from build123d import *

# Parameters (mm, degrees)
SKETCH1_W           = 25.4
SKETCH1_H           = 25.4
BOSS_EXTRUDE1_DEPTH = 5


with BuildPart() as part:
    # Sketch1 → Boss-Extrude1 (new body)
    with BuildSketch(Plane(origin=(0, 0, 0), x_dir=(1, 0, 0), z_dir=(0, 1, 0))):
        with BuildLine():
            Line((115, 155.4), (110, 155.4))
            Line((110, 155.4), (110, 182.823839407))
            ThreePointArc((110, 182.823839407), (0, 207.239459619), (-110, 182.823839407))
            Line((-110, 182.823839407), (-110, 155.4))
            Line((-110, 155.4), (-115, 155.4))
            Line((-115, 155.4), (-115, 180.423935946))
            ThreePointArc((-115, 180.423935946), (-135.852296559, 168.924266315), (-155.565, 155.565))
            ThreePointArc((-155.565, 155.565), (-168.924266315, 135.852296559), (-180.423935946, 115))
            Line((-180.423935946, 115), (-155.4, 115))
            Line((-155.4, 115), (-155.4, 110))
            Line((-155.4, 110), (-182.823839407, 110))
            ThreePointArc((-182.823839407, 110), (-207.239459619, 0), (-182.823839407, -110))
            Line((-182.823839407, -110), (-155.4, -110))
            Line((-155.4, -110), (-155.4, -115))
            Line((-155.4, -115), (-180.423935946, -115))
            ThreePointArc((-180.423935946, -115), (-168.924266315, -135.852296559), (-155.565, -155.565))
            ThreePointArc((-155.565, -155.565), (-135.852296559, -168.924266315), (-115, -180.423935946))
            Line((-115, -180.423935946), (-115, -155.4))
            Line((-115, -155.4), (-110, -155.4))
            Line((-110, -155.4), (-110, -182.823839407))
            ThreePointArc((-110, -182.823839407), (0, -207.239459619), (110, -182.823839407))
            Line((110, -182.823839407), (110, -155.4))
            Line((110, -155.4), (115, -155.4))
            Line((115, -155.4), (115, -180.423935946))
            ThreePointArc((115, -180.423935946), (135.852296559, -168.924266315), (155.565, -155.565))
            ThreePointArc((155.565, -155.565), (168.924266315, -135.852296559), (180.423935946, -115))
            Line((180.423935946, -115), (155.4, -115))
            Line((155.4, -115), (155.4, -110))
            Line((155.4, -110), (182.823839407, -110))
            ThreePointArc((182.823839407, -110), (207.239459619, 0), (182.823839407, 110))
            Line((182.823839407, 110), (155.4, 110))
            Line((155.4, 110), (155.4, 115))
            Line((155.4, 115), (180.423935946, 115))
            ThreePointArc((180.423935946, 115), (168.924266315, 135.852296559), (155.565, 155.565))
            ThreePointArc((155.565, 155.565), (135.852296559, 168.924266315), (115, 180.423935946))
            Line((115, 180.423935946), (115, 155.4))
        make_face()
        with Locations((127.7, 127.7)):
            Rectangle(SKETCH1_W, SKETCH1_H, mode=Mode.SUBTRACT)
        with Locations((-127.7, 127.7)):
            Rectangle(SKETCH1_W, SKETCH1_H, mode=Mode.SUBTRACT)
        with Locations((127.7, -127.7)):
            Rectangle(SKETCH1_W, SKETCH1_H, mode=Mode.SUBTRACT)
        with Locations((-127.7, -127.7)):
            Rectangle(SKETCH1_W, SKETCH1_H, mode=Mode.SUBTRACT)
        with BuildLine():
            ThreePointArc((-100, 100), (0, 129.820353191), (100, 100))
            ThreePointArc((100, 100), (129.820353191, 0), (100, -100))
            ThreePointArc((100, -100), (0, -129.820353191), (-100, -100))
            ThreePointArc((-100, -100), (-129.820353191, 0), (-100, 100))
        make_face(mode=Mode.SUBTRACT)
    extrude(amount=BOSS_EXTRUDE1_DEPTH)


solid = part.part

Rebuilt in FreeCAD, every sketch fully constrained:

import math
import FreeCAD as App
import Part
import Sketcher
from FreeCAD import Vector
Q = App.Units.Quantity


def add_polygon(sketch, points):
    """Adds a closed chain of lines whose ends are joined by coincident constraints."""
    first, n = sketch.GeometryCount, len(points)
    for a, b in zip(points, points[1:] + points[:1]):
        sketch.addGeometry(Part.LineSegment(App.Vector(*a, 0), App.Vector(*b, 0)), False)
    for i in range(n):
        sketch.addConstraint(Sketcher.Constraint("Coincident", first + i, 2, first + (i + 1) % n, 1))

doc = App.newDocument("Part")
body = doc.addObject("PartDesign::Body", "Body")

# Sketch on XZ plane
sketch1 = body.newObject("Sketcher::SketchObject", "Sketch")
sketch1.AttachmentSupport = (doc.getObject("XZ_Plane"), [""])
sketch1.MapMode = "FlatFace"
sketch1.addGeometry(Part.LineSegment(Vector(115, -155, 0), Vector(110, -155, 0)), False)  # 0
sketch1.addGeometry(Part.LineSegment(Vector(110, -155, 0), Vector(110, -183, 0)), False)  # 1
sketch1.addGeometry(Part.ArcOfCircle(Part.Circle(Vector(0, 53, 0), Vector(0, 0, 1), 260), math.radians(-115), math.radians(-65)), False)  # 2
sketch1.addGeometry(Part.LineSegment(Vector(-110, -183, 0), Vector(-110, -155, 0)), False)  # 3
sketch1.addGeometry(Part.LineSegment(Vector(-110, -155, 0), Vector(-115, -155, 0)), False)  # 4
sketch1.addGeometry(Part.LineSegment(Vector(-115, -155, 0), Vector(-115, -180, 0)), False)  # 5
sketch1.addGeometry(Part.ArcOfCircle(Part.Circle(Vector(0, 53, 0), Vector(0, 0, 1), 260), math.radians(-126.75), math.radians(-116.25)), False)  # 6
sketch1.addGeometry(Part.ArcOfCircle(Part.Circle(Vector(53, 0, 0), Vector(0, 0, 1), 260), math.radians(-153.75), math.radians(-143.25)), False)  # 7
sketch1.addGeometry(Part.LineSegment(Vector(-180, -115, 0), Vector(-155, -115, 0)), False)  # 8
sketch1.addGeometry(Part.LineSegment(Vector(-155, -115, 0), Vector(-155, -110, 0)), False)  # 9
sketch1.addGeometry(Part.LineSegment(Vector(-155, -110, 0), Vector(-183, -110, 0)), False)  # 10
sketch1.addGeometry(Part.ArcOfCircle(Part.Circle(Vector(53, 0, 0), Vector(0, 0, 1), 260), math.radians(155), math.radians(205)), False)  # 11
sketch1.addGeometry(Part.LineSegment(Vector(-183, 110, 0), Vector(-155, 110, 0)), False)  # 12
sketch1.addGeometry(Part.LineSegment(Vector(-155, 110, 0), Vector(-155, 115, 0)), False)  # 13
sketch1.addGeometry(Part.LineSegment(Vector(-155, 115, 0), Vector(-180, 115, 0)), False)  # 14
sketch1.addGeometry(Part.ArcOfCircle(Part.Circle(Vector(53, 0, 0), Vector(0, 0, 1), 260), math.radians(143.25), math.radians(153.75)), False)  # 15
sketch1.addGeometry(Part.ArcOfCircle(Part.Circle(Vector(0, -53, 0), Vector(0, 0, 1), 260), math.radians(116.25), math.radians(126.75)), False)  # 16
sketch1.addGeometry(Part.LineSegment(Vector(-115, 180, 0), Vector(-115, 155, 0)), False)  # 17
sketch1.addGeometry(Part.LineSegment(Vector(-115, 155, 0), Vector(-110, 155, 0)), False)  # 18
sketch1.addGeometry(Part.LineSegment(Vector(-110, 155, 0), Vector(-110, 183, 0)), False)  # 19
sketch1.addGeometry(Part.ArcOfCircle(Part.Circle(Vector(0, -53, 0), Vector(0, 0, 1), 260), math.radians(65), math.radians(115)), False)  # 20
sketch1.addGeometry(Part.LineSegment(Vector(110, 183, 0), Vector(110, 155, 0)), False)  # 21
sketch1.addGeometry(Part.LineSegment(Vector(110, 155, 0), Vector(115, 155, 0)), False)  # 22
sketch1.addGeometry(Part.LineSegment(Vector(115, 155, 0), Vector(115, 180, 0)), False)  # 23
sketch1.addGeometry(Part.ArcOfCircle(Part.Circle(Vector(0, -53, 0), Vector(0, 0, 1), 260), math.radians(53.25), math.radians(63.75)), False)  # 24
sketch1.addGeometry(Part.ArcOfCircle(Part.Circle(Vector(-53, 0, 0), Vector(0, 0, 1), 260), math.radians(26.25), math.radians(36.75)), False)  # 25
sketch1.addGeometry(Part.LineSegment(Vector(180, 115, 0), Vector(155, 115, 0)), False)  # 26
sketch1.addGeometry(Part.LineSegment(Vector(155, 115, 0), Vector(155, 110, 0)), False)  # 27
sketch1.addGeometry(Part.LineSegment(Vector(155, 110, 0), Vector(183, 110, 0)), False)  # 28
sketch1.addGeometry(Part.ArcOfCircle(Part.Circle(Vector(-53, 0, 0), Vector(0, 0, 1), 260), math.radians(-25), math.radians(25)), False)  # 29
sketch1.addGeometry(Part.LineSegment(Vector(183, -110, 0), Vector(155, -110, 0)), False)  # 30
sketch1.addGeometry(Part.LineSegment(Vector(155, -110, 0), Vector(155, -115, 0)), False)  # 31
sketch1.addGeometry(Part.LineSegment(Vector(155, -115, 0), Vector(180, -115, 0)), False)  # 32
sketch1.addGeometry(Part.ArcOfCircle(Part.Circle(Vector(-53, 0, 0), Vector(0, 0, 1), 260), math.radians(-36.75), math.radians(-26.25)), False)  # 33
sketch1.addGeometry(Part.ArcOfCircle(Part.Circle(Vector(0, 53, 0), Vector(0, 0, 1), 260), math.radians(-63.75), math.radians(-53.25)), False)  # 34
sketch1.addGeometry(Part.LineSegment(Vector(115, -180, 0), Vector(115, -155, 0)), False)  # 35
add_polygon(sketch1, [(-115, 140), (-140, 140), (-140, 115), (-115, 115)])  # lines 36-39
add_polygon(sketch1, [(140, 140), (115, 140), (115, 115), (140, 115)])  # lines 40-43
sketch1.addGeometry(Part.ArcOfCircle(Part.Circle(Vector(53, 0, 0), Vector(0, 0, 1), 183), math.radians(147), math.radians(213)), False)  # 44
sketch1.addGeometry(Part.ArcOfCircle(Part.Circle(Vector(0, 53, 0), Vector(0, 0, 1), 183), math.radians(-123), math.radians(-57)), False)  # 45
sketch1.addGeometry(Part.ArcOfCircle(Part.Circle(Vector(-53, 0, 0), Vector(0, 0, 1), 183), math.radians(-33), math.radians(33)), False)  # 46
sketch1.addGeometry(Part.ArcOfCircle(Part.Circle(Vector(0, -53, 0), Vector(0, 0, 1), 183), math.radians(57), math.radians(123)), False)  # 47
add_polygon(sketch1, [(-115, -115), (-140, -115), (-140, -140), (-115, -140)])  # lines 48-51
add_polygon(sketch1, [(140, -115), (115, -115), (115, -140), (140, -140)])  # lines 52-55
sketch1.addConstraint(Sketcher.Constraint("Coincident", 0, 2, 1, 1))
sketch1.addConstraint(Sketcher.Constraint("Coincident", 1, 2, 2, 2))
sketch1.addConstraint(Sketcher.Constraint("Coincident", 2, 1, 3, 1))
sketch1.addConstraint(Sketcher.Constraint("Coincident", 3, 2, 4, 1))
sketch1.addConstraint(Sketcher.Constraint("Coincident", 4, 2, 5, 1))
sketch1.addConstraint(Sketcher.Constraint("Coincident", 5, 2, 6, 2))
sketch1.addConstraint(Sketcher.Constraint("Coincident", 6, 1, 7, 2))
sketch1.addConstraint(Sketcher.Constraint("Coincident", 7, 1, 8, 1))
sketch1.addConstraint(Sketcher.Constraint("Coincident", 8, 2, 9, 1))
sketch1.addConstraint(Sketcher.Constraint("Coincident", 9, 2, 10, 1))
sketch1.addConstraint(Sketcher.Constraint("Coincident", 10, 2, 11, 2))
sketch1.addConstraint(Sketcher.Constraint("Coincident", 11, 1, 12, 1))
sketch1.addConstraint(Sketcher.Constraint("Coincident", 12, 2, 13, 1))
sketch1.addConstraint(Sketcher.Constraint("Coincident", 13, 2, 14, 1))
sketch1.addConstraint(Sketcher.Constraint("Coincident", 14, 2, 15, 2))
sketch1.addConstraint(Sketcher.Constraint("Coincident", 15, 1, 16, 2))
sketch1.addConstraint(Sketcher.Constraint("Coincident", 16, 1, 17, 1))
sketch1.addConstraint(Sketcher.Constraint("Coincident", 17, 2, 18, 1))
sketch1.addConstraint(Sketcher.Constraint("Coincident", 18, 2, 19, 1))
sketch1.addConstraint(Sketcher.Constraint("Coincident", 19, 2, 20, 2))
sketch1.addConstraint(Sketcher.Constraint("Coincident", 20, 1, 21, 1))
sketch1.addConstraint(Sketcher.Constraint("Coincident", 21, 2, 22, 1))
sketch1.addConstraint(Sketcher.Constraint("Coincident", 22, 2, 23, 1))
sketch1.addConstraint(Sketcher.Constraint("Coincident", 23, 2, 24, 2))
sketch1.addConstraint(Sketcher.Constraint("Coincident", 24, 1, 25, 2))
sketch1.addConstraint(Sketcher.Constraint("Coincident", 25, 1, 26, 1))
sketch1.addConstraint(Sketcher.Constraint("Coincident", 26, 2, 27, 1))
sketch1.addConstraint(Sketcher.Constraint("Coincident", 27, 2, 28, 1))
sketch1.addConstraint(Sketcher.Constraint("Coincident", 28, 2, 29, 2))
sketch1.addConstraint(Sketcher.Constraint("Coincident", 29, 1, 30, 1))
sketch1.addConstraint(Sketcher.Constraint("Coincident", 30, 2, 31, 1))
sketch1.addConstraint(Sketcher.Constraint("Coincident", 31, 2, 32, 1))
sketch1.addConstraint(Sketcher.Constraint("Coincident", 32, 2, 33, 2))
sketch1.addConstraint(Sketcher.Constraint("Coincident", 33, 1, 34, 2))
sketch1.addConstraint(Sketcher.Constraint("Coincident", 34, 1, 35, 1))
sketch1.addConstraint(Sketcher.Constraint("Coincident", 35, 2, 0, 1))
sketch1.addConstraint(Sketcher.Constraint("Coincident", 44, 2, 45, 1))
sketch1.addConstraint(Sketcher.Constraint("Coincident", 45, 2, 46, 1))
sketch1.addConstraint(Sketcher.Constraint("Coincident", 46, 2, 47, 1))
sketch1.addConstraint(Sketcher.Constraint("Coincident", 47, 2, 44, 1))
sketch1.addConstraint(Sketcher.Constraint("Horizontal", 0))
sketch1.addConstraint(Sketcher.Constraint("Vertical", 1))
sketch1.addConstraint(Sketcher.Constraint("Vertical", 3))
sketch1.addConstraint(Sketcher.Constraint("Horizontal", 4))
sketch1.addConstraint(Sketcher.Constraint("Vertical", 5))
sketch1.addConstraint(Sketcher.Constraint("Horizontal", 8))
sketch1.addConstraint(Sketcher.Constraint("Vertical", 9))
sketch1.addConstraint(Sketcher.Constraint("Horizontal", 10))
sketch1.addConstraint(Sketcher.Constraint("Horizontal", 12))
sketch1.addConstraint(Sketcher.Constraint("Vertical", 13))
sketch1.addConstraint(Sketcher.Constraint("Horizontal", 14))
sketch1.addConstraint(Sketcher.Constraint("Vertical", 17))
sketch1.addConstraint(Sketcher.Constraint("Horizontal", 18))
sketch1.addConstraint(Sketcher.Constraint("Vertical", 19))
sketch1.addConstraint(Sketcher.Constraint("Vertical", 21))
sketch1.addConstraint(Sketcher.Constraint("Horizontal", 22))
sketch1.addConstraint(Sketcher.Constraint("Vertical", 23))
sketch1.addConstraint(Sketcher.Constraint("Horizontal", 26))
sketch1.addConstraint(Sketcher.Constraint("Vertical", 27))
sketch1.addConstraint(Sketcher.Constraint("Horizontal", 28))
sketch1.addConstraint(Sketcher.Constraint("Horizontal", 30))
sketch1.addConstraint(Sketcher.Constraint("Vertical", 31))
sketch1.addConstraint(Sketcher.Constraint("Horizontal", 32))
sketch1.addConstraint(Sketcher.Constraint("Vertical", 35))
sketch1.addConstraint(Sketcher.Constraint("Horizontal", 36))
sketch1.addConstraint(Sketcher.Constraint("Vertical", 37))
sketch1.addConstraint(Sketcher.Constraint("Horizontal", 38))
sketch1.addConstraint(Sketcher.Constraint("Vertical", 39))
sketch1.addConstraint(Sketcher.Constraint("Horizontal", 40))
sketch1.addConstraint(Sketcher.Constraint("Vertical", 41))
sketch1.addConstraint(Sketcher.Constraint("Horizontal", 42))
sketch1.addConstraint(Sketcher.Constraint("Vertical", 43))
sketch1.addConstraint(Sketcher.Constraint("Horizontal", 48))
sketch1.addConstraint(Sketcher.Constraint("Vertical", 49))
sketch1.addConstraint(Sketcher.Constraint("Horizontal", 50))
sketch1.addConstraint(Sketcher.Constraint("Vertical", 51))
sketch1.addConstraint(Sketcher.Constraint("Horizontal", 52))
sketch1.addConstraint(Sketcher.Constraint("Vertical", 53))
sketch1.addConstraint(Sketcher.Constraint("Horizontal", 54))
sketch1.addConstraint(Sketcher.Constraint("Vertical", 55))
sketch1.addConstraint(Sketcher.Constraint("Coincident", 6, 3, 2, 3))
sketch1.addConstraint(Sketcher.Constraint("Coincident", 11, 3, 7, 3))
sketch1.addConstraint(Sketcher.Constraint("Coincident", 15, 3, 7, 3))
sketch1.addConstraint(Sketcher.Constraint("Coincident", 20, 3, 16, 3))
sketch1.addConstraint(Sketcher.Constraint("Coincident", 24, 3, 16, 3))
sketch1.addConstraint(Sketcher.Constraint("Coincident", 29, 3, 25, 3))
sketch1.addConstraint(Sketcher.Constraint("Coincident", 33, 3, 25, 3))
sketch1.addConstraint(Sketcher.Constraint("Coincident", 34, 3, 2, 3))
sketch1.addConstraint(Sketcher.Constraint("Coincident", 44, 3, 7, 3))
sketch1.addConstraint(Sketcher.Constraint("Coincident", 45, 3, 2, 3))
sketch1.addConstraint(Sketcher.Constraint("Coincident", 46, 3, 25, 3))
sketch1.addConstraint(Sketcher.Constraint("Coincident", 47, 3, 16, 3))
sketch1.addConstraint(Sketcher.Constraint("Equal", 2, 6))
sketch1.addConstraint(Sketcher.Constraint("Equal", 6, 7))
sketch1.addConstraint(Sketcher.Constraint("Equal", 7, 11))
sketch1.addConstraint(Sketcher.Constraint("Equal", 11, 15))
sketch1.addConstraint(Sketcher.Constraint("Equal", 15, 16))
sketch1.addConstraint(Sketcher.Constraint("Equal", 16, 20))
sketch1.addConstraint(Sketcher.Constraint("Equal", 20, 24))
sketch1.addConstraint(Sketcher.Constraint("Equal", 24, 25))
sketch1.addConstraint(Sketcher.Constraint("Equal", 25, 29))
sketch1.addConstraint(Sketcher.Constraint("Equal", 29, 33))
sketch1.addConstraint(Sketcher.Constraint("Equal", 33, 34))
sketch1.addConstraint(Sketcher.Constraint("Equal", 44, 45))
sketch1.addConstraint(Sketcher.Constraint("Equal", 45, 46))
sketch1.addConstraint(Sketcher.Constraint("Equal", 46, 47))
sketch1.addConstraint(Sketcher.Constraint("Symmetric", 2, 3, 16, 3, -1, 1))
sketch1.addConstraint(Sketcher.Constraint("Symmetric", 7, 3, 25, 3, -1, 1))
sketch1.addConstraint(Sketcher.Constraint("Symmetric", 0, 2, 18, 2, -1, 1))
sketch1.addConstraint(Sketcher.Constraint("Symmetric", 3, 2, 21, 2, -1, 1))
sketch1.addConstraint(Sketcher.Constraint("Symmetric", 8, 2, 26, 2, -1, 1))
sketch1.addConstraint(Sketcher.Constraint("Symmetric", 12, 2, 30, 2, -1, 1))
sketch1.addConstraint(Sketcher.Constraint("Symmetric", 42, 2, 48, 2, -1, 1))
sketch1.addConstraint(Sketcher.Constraint("Symmetric", 40, 2, 50, 2, -1, 1))
sketch1.addConstraint(Sketcher.Constraint("Symmetric", 38, 2, 52, 2, -1, 1))
sketch1.addConstraint(Sketcher.Constraint("Symmetric", 36, 2, 54, 2, -1, 1))
sketch1.addConstraint(Sketcher.Constraint("Symmetric", 1, 2, 2, 1, -2))
sketch1.addConstraint(Sketcher.Constraint("Symmetric", 17, 2, 22, 2, -2))
sketch1.addConstraint(Sketcher.Constraint("Symmetric", 14, 2, 25, 1, -2))
sketch1.addConstraint(Sketcher.Constraint("Symmetric", 12, 2, 27, 2, -2))
sketch1.addConstraint(Sketcher.Constraint("Symmetric", 39, 2, 40, 2, -2))
sketch1.addConstraint(Sketcher.Constraint("Symmetric", 37, 2, 42, 2, -2))
sketch1.addConstraint(Sketcher.Constraint("Horizontal", 10, 2, 29, 1))
sketch1.addConstraint(Sketcher.Constraint("Horizontal", 8, 2, 31, 2))
sketch1.addConstraint(Sketcher.Constraint("Horizontal", 5, 2, 34, 1))
sketch1.addConstraint(Sketcher.Constraint("Horizontal", 26, 2, 37, 2))
sketch1.addConstraint(Sketcher.Constraint("Vertical", 5, 2, 16, 1))
sketch1.addConstraint(Sketcher.Constraint("Vertical", 17, 2, 38, 2))
sketch1.addConstraint(Sketcher.Constraint("Equal", 30, 1))
sketch1.addConstraint(Sketcher.Constraint("Equal", 32, 5))
sketch1.addConstraint(Sketcher.Constraint("Equal", 22, 9))
sketch1.addConstraint(Sketcher.Constraint("Equal", 54, 37))
sketch1.addConstraint(Sketcher.Constraint("Radius", 2, Q("260 mm")))
sketch1.addConstraint(Sketcher.Constraint("DistanceX", 0, 2, 0, 1, Q("5 mm")))
sketch1.addConstraint(Sketcher.Constraint("DistanceX", 36, 2, 36, 1, Q("25.4 mm")))
sketch1.addConstraint(Sketcher.Constraint("DistanceX", -1, 1, 0, 2, Q("110 mm")))
sketch1.addConstraint(Sketcher.Constraint("DistanceX", 44, 2, -1, 1, Q("100 mm")))
sketch1.addConstraint(Sketcher.Constraint("DistanceY", 44, 2, -1, 1, Q("100 mm")))
sketch1.addConstraint(Sketcher.Constraint("DistanceY", 0, 2, -1, 1, Q("155.4 mm")))
sketch1.addConstraint(Sketcher.Constraint("Radius", 44, Q("182.580894 mm")))
pad1 = body.newObject("PartDesign::Pad", "Pad")
pad1.Profile = sketch1
pad1.Length = 5
pad1.Reversed = True

doc.recompute()
